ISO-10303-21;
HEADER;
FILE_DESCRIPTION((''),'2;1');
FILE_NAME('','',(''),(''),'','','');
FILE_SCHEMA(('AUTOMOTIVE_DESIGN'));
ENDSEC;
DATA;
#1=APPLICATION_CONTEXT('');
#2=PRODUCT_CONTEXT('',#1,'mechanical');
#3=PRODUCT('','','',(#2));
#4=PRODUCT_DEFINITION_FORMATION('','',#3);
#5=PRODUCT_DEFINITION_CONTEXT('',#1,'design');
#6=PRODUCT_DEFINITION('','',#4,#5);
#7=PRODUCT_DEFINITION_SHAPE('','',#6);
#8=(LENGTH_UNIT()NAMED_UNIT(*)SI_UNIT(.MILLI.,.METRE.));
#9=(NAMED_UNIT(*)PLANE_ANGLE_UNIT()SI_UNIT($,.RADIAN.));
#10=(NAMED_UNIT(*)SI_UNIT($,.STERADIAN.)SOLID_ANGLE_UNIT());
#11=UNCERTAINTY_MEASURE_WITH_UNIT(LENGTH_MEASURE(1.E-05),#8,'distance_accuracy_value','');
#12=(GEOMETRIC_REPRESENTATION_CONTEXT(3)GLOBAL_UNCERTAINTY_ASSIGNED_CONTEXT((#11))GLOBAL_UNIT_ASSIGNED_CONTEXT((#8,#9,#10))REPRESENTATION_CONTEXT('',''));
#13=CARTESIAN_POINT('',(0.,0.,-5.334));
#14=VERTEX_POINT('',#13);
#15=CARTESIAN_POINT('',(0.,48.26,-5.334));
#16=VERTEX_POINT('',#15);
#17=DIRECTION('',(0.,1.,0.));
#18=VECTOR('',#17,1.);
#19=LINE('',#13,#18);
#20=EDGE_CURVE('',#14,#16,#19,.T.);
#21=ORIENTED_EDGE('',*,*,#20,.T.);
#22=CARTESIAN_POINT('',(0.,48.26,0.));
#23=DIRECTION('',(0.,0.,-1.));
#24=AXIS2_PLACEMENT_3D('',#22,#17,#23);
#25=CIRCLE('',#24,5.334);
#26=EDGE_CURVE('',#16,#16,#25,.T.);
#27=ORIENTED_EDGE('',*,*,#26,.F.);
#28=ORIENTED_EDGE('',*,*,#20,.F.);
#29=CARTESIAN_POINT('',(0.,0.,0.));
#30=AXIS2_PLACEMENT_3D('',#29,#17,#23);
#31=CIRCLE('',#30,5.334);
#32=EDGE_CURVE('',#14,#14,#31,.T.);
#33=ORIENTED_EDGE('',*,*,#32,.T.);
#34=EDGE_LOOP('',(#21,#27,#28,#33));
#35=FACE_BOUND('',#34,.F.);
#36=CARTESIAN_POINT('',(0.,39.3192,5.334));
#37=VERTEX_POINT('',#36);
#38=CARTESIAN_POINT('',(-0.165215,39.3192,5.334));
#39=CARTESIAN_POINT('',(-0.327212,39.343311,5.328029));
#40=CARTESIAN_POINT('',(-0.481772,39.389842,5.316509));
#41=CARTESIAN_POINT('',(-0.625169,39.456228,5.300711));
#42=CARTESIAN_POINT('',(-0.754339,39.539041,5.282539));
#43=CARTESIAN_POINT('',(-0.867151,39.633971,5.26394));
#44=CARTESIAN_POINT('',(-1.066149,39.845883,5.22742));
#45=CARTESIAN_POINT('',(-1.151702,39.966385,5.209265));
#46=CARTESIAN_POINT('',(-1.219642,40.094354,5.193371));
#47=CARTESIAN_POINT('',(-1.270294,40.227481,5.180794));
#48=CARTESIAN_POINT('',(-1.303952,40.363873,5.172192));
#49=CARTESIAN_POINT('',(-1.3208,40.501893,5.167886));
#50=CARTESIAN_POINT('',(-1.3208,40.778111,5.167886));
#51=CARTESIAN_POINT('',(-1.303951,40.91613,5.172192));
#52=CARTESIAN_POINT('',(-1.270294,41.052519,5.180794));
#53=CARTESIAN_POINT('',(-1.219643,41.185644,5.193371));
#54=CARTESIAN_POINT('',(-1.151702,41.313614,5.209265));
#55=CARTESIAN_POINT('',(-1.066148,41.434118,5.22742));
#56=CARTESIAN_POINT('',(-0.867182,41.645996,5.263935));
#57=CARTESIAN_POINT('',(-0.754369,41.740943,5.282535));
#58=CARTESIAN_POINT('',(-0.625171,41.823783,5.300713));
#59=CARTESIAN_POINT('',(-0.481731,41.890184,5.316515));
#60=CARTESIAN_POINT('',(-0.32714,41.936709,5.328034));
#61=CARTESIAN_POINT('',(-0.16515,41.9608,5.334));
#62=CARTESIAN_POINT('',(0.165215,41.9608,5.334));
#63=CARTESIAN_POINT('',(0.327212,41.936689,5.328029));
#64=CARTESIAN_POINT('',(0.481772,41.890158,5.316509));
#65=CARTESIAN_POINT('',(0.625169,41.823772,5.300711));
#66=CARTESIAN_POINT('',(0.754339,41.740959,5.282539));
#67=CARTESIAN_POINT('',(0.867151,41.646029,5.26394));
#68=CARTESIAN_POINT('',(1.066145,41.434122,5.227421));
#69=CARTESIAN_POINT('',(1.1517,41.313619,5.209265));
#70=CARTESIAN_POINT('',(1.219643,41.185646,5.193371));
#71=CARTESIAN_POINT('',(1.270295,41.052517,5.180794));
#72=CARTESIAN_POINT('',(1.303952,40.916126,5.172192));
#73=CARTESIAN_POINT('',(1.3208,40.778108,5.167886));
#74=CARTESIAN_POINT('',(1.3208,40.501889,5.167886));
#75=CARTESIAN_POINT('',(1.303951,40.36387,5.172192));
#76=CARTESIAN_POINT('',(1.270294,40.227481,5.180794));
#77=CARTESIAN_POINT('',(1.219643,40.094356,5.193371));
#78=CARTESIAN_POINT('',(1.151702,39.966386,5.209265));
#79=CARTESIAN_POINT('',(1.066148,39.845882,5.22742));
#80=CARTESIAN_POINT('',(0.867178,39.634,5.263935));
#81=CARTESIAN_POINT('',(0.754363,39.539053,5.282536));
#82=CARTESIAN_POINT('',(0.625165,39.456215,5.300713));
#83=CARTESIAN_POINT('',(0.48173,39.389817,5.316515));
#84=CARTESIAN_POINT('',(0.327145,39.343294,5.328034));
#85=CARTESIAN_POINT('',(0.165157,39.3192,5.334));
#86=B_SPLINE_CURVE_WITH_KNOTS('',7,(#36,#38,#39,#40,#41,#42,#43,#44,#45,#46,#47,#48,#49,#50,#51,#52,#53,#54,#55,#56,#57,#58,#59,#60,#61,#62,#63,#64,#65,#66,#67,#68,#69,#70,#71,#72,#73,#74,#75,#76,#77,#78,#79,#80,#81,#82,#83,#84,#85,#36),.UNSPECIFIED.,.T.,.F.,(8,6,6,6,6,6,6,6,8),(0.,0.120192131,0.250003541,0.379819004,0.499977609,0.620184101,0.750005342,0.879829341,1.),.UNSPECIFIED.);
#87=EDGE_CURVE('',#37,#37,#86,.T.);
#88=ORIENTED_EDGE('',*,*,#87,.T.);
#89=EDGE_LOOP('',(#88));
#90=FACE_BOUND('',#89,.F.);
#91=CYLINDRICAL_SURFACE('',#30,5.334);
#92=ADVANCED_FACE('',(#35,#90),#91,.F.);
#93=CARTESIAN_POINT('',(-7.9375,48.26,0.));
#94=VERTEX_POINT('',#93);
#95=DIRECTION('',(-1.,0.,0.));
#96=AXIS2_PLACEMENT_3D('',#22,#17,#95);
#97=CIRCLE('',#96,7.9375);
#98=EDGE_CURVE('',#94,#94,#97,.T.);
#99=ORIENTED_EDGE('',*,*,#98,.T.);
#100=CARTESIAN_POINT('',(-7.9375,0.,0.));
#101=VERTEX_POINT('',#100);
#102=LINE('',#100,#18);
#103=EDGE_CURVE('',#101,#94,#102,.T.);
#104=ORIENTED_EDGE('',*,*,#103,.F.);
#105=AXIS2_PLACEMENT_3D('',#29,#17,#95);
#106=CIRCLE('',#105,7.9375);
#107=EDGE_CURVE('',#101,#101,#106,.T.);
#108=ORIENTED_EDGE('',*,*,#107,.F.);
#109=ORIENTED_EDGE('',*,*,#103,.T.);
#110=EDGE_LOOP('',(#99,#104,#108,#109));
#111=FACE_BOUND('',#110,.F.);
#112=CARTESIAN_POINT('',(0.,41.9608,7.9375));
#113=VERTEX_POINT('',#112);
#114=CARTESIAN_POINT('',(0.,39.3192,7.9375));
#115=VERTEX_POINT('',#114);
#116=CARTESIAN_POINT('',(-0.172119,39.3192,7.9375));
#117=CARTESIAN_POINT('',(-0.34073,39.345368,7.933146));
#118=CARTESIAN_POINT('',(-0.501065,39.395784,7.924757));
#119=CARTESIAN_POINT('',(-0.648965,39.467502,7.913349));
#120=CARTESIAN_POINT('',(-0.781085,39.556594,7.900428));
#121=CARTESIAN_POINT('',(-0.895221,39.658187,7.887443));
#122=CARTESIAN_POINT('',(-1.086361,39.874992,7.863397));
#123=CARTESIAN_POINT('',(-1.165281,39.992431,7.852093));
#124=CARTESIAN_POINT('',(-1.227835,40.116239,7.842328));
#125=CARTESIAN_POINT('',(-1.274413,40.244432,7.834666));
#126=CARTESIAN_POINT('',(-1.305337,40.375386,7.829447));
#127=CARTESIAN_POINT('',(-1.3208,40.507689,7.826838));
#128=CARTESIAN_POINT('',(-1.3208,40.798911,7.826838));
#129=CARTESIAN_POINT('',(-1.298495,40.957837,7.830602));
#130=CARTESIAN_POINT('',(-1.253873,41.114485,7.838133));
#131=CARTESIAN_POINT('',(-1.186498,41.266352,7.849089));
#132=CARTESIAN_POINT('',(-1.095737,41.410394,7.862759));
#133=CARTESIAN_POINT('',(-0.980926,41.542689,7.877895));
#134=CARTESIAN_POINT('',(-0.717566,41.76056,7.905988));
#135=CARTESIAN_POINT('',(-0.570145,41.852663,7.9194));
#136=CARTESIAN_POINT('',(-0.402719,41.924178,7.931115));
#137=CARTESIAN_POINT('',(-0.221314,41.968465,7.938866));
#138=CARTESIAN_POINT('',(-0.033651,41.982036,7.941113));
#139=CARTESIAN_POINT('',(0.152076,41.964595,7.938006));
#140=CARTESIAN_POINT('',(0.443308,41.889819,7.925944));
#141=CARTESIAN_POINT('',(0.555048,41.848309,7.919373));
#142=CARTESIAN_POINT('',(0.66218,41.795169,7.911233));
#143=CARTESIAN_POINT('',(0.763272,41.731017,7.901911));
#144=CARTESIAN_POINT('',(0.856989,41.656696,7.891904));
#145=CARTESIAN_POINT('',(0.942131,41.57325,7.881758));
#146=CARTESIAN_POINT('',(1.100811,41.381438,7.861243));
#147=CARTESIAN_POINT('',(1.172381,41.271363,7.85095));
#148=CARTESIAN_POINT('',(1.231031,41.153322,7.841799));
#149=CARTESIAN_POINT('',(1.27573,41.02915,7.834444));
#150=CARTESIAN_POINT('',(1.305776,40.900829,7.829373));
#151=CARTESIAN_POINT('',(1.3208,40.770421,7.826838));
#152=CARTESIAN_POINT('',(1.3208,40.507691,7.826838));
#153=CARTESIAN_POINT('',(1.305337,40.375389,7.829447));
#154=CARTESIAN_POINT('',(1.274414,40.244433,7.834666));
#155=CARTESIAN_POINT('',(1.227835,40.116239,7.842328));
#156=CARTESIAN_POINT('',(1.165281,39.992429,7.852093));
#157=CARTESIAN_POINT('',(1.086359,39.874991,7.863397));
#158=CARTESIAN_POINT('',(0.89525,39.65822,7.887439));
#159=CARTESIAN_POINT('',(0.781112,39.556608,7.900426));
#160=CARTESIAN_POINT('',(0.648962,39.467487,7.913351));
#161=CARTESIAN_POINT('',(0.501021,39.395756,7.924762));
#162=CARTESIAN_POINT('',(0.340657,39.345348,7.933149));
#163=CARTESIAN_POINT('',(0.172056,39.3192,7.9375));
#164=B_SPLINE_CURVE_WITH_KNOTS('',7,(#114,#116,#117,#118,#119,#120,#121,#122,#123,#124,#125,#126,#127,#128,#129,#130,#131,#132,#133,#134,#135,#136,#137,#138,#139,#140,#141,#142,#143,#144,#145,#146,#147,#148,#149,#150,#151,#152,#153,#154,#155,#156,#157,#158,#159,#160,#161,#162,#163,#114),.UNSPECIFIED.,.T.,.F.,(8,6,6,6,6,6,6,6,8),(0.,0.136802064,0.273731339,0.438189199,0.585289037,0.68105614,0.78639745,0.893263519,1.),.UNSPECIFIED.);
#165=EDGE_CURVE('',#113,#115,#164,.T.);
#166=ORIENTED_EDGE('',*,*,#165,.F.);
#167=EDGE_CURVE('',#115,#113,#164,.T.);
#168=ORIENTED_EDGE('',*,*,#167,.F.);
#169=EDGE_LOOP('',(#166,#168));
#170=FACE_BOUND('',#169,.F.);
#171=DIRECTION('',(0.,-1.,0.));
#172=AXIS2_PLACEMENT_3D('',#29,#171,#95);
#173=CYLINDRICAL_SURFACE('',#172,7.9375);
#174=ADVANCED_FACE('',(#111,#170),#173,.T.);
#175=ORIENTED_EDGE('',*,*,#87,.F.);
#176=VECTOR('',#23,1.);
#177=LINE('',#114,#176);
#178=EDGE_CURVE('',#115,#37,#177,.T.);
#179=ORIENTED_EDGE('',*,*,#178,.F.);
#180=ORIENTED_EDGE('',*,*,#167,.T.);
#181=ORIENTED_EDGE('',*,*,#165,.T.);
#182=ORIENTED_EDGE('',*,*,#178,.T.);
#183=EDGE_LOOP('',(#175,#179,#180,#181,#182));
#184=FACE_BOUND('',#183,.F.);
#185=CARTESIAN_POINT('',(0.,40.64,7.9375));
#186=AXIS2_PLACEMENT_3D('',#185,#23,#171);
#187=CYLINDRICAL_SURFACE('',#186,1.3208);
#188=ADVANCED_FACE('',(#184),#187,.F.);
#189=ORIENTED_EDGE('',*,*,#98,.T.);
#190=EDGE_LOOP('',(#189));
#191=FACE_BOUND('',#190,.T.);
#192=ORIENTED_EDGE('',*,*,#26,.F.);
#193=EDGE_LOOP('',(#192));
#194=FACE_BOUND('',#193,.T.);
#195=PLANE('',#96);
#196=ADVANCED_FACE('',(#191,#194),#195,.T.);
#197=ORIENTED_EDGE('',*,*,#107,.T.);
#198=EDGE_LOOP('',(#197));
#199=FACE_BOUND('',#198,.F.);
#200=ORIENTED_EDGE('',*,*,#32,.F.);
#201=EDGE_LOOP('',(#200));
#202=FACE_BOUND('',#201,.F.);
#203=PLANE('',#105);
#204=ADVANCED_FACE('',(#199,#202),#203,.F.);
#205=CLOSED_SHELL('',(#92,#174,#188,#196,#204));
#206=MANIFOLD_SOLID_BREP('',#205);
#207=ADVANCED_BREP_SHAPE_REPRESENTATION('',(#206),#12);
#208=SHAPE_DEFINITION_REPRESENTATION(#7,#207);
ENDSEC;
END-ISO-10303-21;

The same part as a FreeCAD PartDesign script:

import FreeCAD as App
import Part
import Sketcher
from FreeCAD import Vector
Q = App.Units.Quantity

doc = App.newDocument("Part")
body = doc.addObject("PartDesign::Body", "Body")

sketch1 = doc.addObject("Sketcher::SketchObject", "Sketch")
body.addObject(sketch1)
sketch1.AttachmentSupport = (doc.XZ_Plane, [""])
sketch1.MapMode = "FlatFace"
sketch1.addGeometry(Part.Circle(Vector(0, 0, 0), Vector(0, 0, 1), 7.9375), False)
sketch1.addConstraint([
    Sketcher.Constraint("Coincident", 0, 3, -1, 1),
    Sketcher.Constraint("Diameter", 0, Q("0.625 in")),
])
pad1 = doc.addObject("PartDesign::Pad", "Pad")
body.addObject(pad1)
pad1.Profile = sketch1
pad1.Length = Q("1.9 in")
pad1.Reversed = True

sketch2 = doc.addObject("Sketcher::SketchObject", "Sketch001")
body.addObject(sketch2)
sketch2.AttachmentSupport = (doc.XZ_Plane, [""])
sketch2.MapMode = "FlatFace"
sketch2.addGeometry(Part.Circle(Vector(0, 0, 0), Vector(0, 0, 1), 5.334), False)
sketch2.addConstraint([
    Sketcher.Constraint("Coincident", 0, 3, -1, 1),
    Sketcher.Constraint("Diameter", 0, Q("0.42 in")),
])
doc.recompute()
hole = doc.addObject("PartDesign::Hole", "Hole")
body.addObject(hole)
hole.Profile = sketch2
hole.ThreadType = "None"
hole.Diameter = Q("0.42 in")
hole.DepthType = "ThroughAll"

sketch3 = doc.addObject("Sketcher::SketchObject", "Sketch002")
body.addObject(sketch3)
sketch3.AttachmentSupport = (doc.XY_Plane, [""])
sketch3.MapMode = "FlatFace"
sketch3.AttachmentOffset = App.Placement(Vector(0, 0, 0.3125 * 25.4), App.Rotation())
sketch3.addGeometry(Part.Circle(Vector(0, 40.64, 0), Vector(0, 0, 1), 1.3208), False)
sketch3.addConstraint([
    Sketcher.Constraint("PointOnObject", 0, 3, -2),
    Sketcher.Constraint("Diameter", 0, Q("0.104 in")),
    Sketcher.Constraint("DistanceY", -1, 1, 0, 3, Q("1.6 in")),
])
doc.recompute()
hole2 = doc.addObject("PartDesign::Hole", "Hole001")
body.addObject(hole2)
hole2.Profile = sketch3
hole2.ThreadType = "None"
hole2.Diameter = Q("0.104 in")
hole2.DepthType = "Dimension"
hole2.Depth = Q("0.4 in")
hole2.DrillPoint = "Angled"
hole2.DrillPointAngle = 118

doc.recompute()
